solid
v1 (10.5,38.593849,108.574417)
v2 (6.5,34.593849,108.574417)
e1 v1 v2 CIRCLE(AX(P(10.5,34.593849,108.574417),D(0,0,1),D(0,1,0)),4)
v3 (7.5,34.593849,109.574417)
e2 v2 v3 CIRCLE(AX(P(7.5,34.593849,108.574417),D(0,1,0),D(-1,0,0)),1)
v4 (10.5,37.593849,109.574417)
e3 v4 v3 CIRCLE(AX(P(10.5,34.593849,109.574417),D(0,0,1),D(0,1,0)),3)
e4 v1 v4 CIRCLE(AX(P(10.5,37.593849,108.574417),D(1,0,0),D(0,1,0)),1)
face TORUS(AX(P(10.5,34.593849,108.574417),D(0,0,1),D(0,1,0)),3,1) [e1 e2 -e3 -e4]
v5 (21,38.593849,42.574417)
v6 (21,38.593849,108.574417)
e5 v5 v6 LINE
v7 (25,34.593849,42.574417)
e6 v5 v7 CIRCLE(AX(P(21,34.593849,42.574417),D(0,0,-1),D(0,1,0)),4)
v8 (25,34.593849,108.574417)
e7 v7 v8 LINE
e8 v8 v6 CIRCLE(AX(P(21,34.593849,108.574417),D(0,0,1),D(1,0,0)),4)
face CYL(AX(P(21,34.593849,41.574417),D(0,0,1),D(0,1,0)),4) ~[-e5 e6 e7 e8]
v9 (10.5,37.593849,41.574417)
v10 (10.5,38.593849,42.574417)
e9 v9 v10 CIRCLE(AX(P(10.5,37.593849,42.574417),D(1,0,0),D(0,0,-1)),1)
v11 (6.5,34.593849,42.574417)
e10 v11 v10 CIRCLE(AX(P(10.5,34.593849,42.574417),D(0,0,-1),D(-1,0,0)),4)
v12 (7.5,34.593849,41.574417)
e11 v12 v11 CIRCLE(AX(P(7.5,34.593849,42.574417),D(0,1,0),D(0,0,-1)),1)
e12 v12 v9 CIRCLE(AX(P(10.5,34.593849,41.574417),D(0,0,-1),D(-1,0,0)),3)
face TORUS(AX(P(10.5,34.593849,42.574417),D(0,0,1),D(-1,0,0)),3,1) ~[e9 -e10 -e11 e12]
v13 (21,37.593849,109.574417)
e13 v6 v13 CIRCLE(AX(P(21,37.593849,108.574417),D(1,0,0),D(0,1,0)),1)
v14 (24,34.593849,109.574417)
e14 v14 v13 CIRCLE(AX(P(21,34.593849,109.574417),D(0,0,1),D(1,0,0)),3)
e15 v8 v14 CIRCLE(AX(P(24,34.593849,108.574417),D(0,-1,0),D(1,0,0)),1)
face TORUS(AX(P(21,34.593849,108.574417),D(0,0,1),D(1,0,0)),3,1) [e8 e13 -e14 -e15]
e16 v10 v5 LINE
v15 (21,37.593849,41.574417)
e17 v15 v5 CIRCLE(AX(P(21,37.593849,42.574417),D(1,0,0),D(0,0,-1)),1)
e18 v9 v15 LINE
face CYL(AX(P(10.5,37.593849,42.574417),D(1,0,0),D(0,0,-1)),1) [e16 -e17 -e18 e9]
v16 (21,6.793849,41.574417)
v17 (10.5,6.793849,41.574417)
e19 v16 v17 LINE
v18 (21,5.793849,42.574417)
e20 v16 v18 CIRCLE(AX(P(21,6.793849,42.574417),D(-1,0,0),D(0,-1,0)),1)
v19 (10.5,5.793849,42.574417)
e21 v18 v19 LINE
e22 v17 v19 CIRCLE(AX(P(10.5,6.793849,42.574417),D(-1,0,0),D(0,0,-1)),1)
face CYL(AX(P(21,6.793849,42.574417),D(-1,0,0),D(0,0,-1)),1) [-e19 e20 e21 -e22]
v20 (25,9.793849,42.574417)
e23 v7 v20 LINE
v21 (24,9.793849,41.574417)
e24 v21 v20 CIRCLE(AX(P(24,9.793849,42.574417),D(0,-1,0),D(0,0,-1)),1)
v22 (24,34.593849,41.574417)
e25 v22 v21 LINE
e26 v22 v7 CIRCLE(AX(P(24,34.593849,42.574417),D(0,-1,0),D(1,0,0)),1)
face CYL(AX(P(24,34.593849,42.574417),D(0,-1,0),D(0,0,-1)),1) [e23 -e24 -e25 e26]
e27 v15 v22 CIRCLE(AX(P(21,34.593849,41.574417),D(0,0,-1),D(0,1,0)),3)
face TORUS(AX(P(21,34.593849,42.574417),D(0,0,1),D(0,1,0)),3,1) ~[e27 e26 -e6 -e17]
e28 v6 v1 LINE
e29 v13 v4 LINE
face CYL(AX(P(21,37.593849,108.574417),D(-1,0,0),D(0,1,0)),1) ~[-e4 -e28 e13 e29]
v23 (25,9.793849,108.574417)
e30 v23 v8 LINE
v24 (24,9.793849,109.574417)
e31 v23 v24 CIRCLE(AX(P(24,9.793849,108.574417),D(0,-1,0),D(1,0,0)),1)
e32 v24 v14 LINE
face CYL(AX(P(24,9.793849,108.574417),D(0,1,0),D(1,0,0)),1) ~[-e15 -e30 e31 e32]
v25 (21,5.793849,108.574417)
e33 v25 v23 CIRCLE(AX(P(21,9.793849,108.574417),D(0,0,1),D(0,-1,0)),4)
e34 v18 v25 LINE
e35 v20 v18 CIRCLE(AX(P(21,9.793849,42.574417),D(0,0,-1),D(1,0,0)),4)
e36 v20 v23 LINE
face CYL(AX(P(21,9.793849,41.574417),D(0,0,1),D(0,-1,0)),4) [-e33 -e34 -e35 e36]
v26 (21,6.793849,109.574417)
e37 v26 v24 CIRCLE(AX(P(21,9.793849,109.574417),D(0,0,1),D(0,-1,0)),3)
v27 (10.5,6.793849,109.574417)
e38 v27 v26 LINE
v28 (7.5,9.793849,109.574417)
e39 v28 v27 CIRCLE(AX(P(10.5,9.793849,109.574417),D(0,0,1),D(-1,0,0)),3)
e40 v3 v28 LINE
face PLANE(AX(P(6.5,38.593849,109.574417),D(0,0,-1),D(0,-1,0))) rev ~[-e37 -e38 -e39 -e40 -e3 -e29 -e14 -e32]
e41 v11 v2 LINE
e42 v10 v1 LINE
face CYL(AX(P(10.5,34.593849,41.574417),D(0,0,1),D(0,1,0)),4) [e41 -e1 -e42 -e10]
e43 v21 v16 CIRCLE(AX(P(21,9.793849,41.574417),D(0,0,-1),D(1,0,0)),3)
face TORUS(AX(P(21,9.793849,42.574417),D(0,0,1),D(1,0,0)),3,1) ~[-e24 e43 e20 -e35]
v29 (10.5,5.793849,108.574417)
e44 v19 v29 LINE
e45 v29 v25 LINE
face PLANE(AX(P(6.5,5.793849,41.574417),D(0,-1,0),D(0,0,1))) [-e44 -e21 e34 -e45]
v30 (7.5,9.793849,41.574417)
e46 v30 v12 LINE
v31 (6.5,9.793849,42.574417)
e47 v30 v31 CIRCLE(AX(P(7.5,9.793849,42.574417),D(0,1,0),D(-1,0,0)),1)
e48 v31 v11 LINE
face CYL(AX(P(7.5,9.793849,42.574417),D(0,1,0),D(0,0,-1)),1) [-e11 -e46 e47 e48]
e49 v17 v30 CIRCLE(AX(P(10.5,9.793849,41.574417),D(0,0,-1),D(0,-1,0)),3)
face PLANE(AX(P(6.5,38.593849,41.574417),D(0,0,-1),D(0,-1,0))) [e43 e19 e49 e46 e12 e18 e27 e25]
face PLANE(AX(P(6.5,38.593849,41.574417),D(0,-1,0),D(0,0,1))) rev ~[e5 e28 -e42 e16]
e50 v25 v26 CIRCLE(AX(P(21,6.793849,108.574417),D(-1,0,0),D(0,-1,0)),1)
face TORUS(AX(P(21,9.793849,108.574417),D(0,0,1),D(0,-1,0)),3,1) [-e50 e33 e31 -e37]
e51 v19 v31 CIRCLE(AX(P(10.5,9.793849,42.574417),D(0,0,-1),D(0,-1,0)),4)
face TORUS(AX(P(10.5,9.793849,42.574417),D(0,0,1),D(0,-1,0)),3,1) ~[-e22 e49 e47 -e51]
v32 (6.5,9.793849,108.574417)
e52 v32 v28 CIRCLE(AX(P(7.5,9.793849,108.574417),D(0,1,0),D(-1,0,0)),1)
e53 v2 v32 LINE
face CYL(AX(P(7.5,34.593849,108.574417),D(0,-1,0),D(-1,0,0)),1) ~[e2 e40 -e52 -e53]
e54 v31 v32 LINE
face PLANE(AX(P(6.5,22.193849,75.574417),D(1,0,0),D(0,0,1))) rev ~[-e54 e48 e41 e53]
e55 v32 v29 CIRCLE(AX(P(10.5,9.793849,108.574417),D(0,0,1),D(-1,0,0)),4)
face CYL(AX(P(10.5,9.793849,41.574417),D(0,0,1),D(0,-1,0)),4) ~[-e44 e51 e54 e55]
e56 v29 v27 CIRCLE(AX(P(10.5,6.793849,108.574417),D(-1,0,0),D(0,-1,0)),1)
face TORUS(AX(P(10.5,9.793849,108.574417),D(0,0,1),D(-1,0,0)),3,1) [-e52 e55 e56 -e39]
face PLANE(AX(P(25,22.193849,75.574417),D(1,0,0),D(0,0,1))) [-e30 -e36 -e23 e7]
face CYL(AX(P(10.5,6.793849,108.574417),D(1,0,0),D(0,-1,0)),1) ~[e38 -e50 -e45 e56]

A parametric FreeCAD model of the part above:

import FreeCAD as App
import Part
import Sketcher
from FreeCAD import Vector


def edges_at(feature, points):
    """Names of the edges that pass closest to the given points."""
    edges = feature.Shape.Edges
    near = lambda p: min(range(len(edges)), key=lambda i: edges[i].distToShape(Part.Vertex(*p))[0])
    return sorted({f"Edge{near(p) + 1}" for p in points})


def add_polygon(sketch, points):
    """Adds a closed chain of lines whose ends are joined by coincident constraints."""
    first, n = sketch.GeometryCount, len(points)
    for a, b in zip(points, points[1:] + points[:1]):
        sketch.addGeometry(Part.LineSegment(App.Vector(*a, 0), App.Vector(*b, 0)), False)
    for i in range(n):
        sketch.addConstraint(Sketcher.Constraint("Coincident", first + i, 2, first + (i + 1) % n, 1))

doc = App.newDocument("Part")
body = doc.addObject("PartDesign::Body", "Body")

# Sketch on YZ plane
sketch1 = body.newObject("Sketcher::SketchObject", "Sketch")
sketch1.AttachmentSupport = (doc.getObject("YZ_Plane"), [""])
sketch1.MapMode = "FlatFace"
sketch1.AttachmentOffset = App.Placement(Vector(0, 0, 6.5), App.Rotation())
add_polygon(sketch1, [(6, 42), (39, 42), (39, 110), (6, 110)])  # lines 0-3
sketch1.addConstraint([
    Sketcher.Constraint("Horizontal", 0),
    Sketcher.Constraint("Vertical", 1),
    Sketcher.Constraint("Horizontal", 2),
    Sketcher.Constraint("Vertical", 3),
    Sketcher.Constraint("DistanceY", 1, 1, 1, 2, 68.0),
    Sketcher.Constraint("DistanceX", 0, 1, 0, 2, 32.8),
    Sketcher.Constraint("DistanceX", -1, 1, 0, 2, 38.593849),
    Sketcher.Constraint("DistanceY", -1, 1, 0, 2, 41.574417),
])
pad1 = body.newObject("PartDesign::Pad", "Pad")
pad1.Profile = sketch1
pad1.Length = 18.5
doc.recompute()

fillet = body.newObject("PartDesign::Fillet", "Fillet")
fillet.Base = (pad1, edges_at(pad1, [
    (25, 38.594, 75.574),
    (6.5, 38.594, 75.574),
    (6.5, 5.794, 75.574),
    (25, 5.794, 75.574),
]))
fillet.Radius = 4
doc.recompute()

fillet2 = body.newObject("PartDesign::Fillet", "Fillet001")
fillet2.Base = (fillet, edges_at(fillet, [
    (15.75, 5.794, 109.574),
    (7.672, 6.965, 109.574),
    (23.828, 6.965, 109.574),
    (6.5, 22.194, 109.574),
    (25, 22.194, 109.574),
    (7.672, 37.422, 109.574),
    (23.828, 37.422, 109.574),
    (15.75, 38.594, 109.574),
    (15.75, 38.594, 41.574),
    (7.672, 37.422, 41.574),
    (23.828, 37.422, 41.574),
    (6.5, 22.194, 41.574),
    (25, 22.194, 41.574),
    (7.672, 6.965, 41.574),
    (23.828, 6.965, 41.574),
    (15.75, 5.794, 41.574),
]))
fillet2.Radius = 1

doc.recompute()
